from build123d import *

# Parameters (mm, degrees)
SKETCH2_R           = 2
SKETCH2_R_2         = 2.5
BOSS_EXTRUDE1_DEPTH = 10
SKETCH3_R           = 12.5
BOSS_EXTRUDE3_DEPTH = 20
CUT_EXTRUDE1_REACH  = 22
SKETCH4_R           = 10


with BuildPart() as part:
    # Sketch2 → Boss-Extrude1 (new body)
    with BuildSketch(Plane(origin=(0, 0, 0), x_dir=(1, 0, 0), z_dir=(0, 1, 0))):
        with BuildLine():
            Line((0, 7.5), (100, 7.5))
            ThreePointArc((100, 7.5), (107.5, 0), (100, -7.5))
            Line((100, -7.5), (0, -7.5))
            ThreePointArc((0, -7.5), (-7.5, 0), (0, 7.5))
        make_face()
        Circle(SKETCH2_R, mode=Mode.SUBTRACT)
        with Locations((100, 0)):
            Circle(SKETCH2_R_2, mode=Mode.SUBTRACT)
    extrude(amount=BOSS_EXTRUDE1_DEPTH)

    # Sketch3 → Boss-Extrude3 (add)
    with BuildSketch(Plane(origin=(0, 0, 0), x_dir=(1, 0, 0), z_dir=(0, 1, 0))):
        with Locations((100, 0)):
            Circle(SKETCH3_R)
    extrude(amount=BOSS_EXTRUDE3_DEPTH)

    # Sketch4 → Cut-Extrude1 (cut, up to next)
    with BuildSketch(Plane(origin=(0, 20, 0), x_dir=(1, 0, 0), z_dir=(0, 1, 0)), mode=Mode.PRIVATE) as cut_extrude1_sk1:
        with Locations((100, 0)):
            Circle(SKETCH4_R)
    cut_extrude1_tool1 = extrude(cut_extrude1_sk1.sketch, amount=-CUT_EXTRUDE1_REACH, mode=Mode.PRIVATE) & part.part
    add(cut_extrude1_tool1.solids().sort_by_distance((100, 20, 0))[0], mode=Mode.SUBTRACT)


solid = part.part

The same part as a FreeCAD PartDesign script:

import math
import FreeCAD as App
import Part
import Sketcher
Q = App.Units.Quantity

doc = App.newDocument("Part")
body = doc.addObject("PartDesign::Body", "Body")

# Sketch on XZ plane
sketch1 = body.newObject("Sketcher::SketchObject", "Sketch")
sketch1.AttachmentSupport = (doc.getObject("XZ_Plane"), [""])
sketch1.MapMode = "FlatFace"
sketch1.addGeometry(Part.LineSegment(App.Vector(100, -7.5, 0), App.Vector(0, -7.5, 0)), False)
sketch1.addGeometry(Part.ArcOfCircle(Part.Circle(App.Vector(0, 0, 0), App.Vector(0, 0, 1), 7.5), math.radians(90), math.radians(270)), False)
sketch1.addGeometry(Part.LineSegment(App.Vector(0, 7.5, 0), App.Vector(100, 7.5, 0)), False)
sketch1.addGeometry(Part.ArcOfCircle(Part.Circle(App.Vector(100, 0, 0), App.Vector(0, 0, 1), 7.5), math.radians(-90), math.radians(90)), False)
sketch1.addGeometry(Part.Circle(App.Vector(100, 0, 0), App.Vector(0, 0, 1), 2.5), False)
sketch1.addGeometry(Part.Circle(App.Vector(0, 0, 0), App.Vector(0, 0, 1), 2), False)
sketch1.addConstraint(Sketcher.Constraint("Tangent", 0, 2, 1, 2))
sketch1.addConstraint(Sketcher.Constraint("Tangent", 1, 1, 2, 1))
sketch1.addConstraint(Sketcher.Constraint("Tangent", 2, 2, 3, 2))
sketch1.addConstraint(Sketcher.Constraint("Tangent", 3, 1, 0, 1))
sketch1.addConstraint(Sketcher.Constraint("Horizontal", 0))
sketch1.addConstraint(Sketcher.Constraint("Horizontal", 2))
sketch1.addConstraint(Sketcher.Constraint("Coincident", 1, 3, -1, 1))
sketch1.addConstraint(Sketcher.Constraint("Coincident", 5, 3, -1, 1))
sketch1.addConstraint(Sketcher.Constraint("Coincident", 4, 3, 3, 3))
sketch1.addConstraint(Sketcher.Constraint("Diameter", 4, Q("5 mm")))
sketch1.addConstraint(Sketcher.Constraint("Diameter", 5, Q("4 mm")))
sketch1.addConstraint(Sketcher.Constraint("Radius", 1, Q("7.5 mm")))
sketch1.addConstraint(Sketcher.Constraint("DistanceX", 0, 2, 0, 1, Q("100 mm")))
pad1 = body.newObject("PartDesign::Pad", "Pad")
pad1.Profile = sketch1
pad1.Length = 10
pad1.Reversed = True

# Sketch on XZ plane
sketch2 = body.newObject("Sketcher::SketchObject", "Sketch001")
sketch2.AttachmentSupport = (doc.getObject("XZ_Plane"), [""])
sketch2.MapMode = "FlatFace"
sketch2.addGeometry(Part.Circle(App.Vector(100, 0, 0), App.Vector(0, 0, 1), 12), False)
sketch2.addConstraint(Sketcher.Constraint("PointOnObject", 0, 3, -1))
sketch2.addConstraint(Sketcher.Constraint("Diameter", 0, Q("25 mm")))
sketch2.addConstraint(Sketcher.Constraint("DistanceX", -1, 1, 0, 3, Q("100 mm")))
pad2 = body.newObject("PartDesign::Pad", "Pad001")
pad2.Profile = sketch2
pad2.Length = 20
pad2.Reversed = True

# Sketch on XZ plane
sketch3 = body.newObject("Sketcher::SketchObject", "Sketch002")
sketch3.AttachmentSupport = (doc.getObject("XZ_Plane"), [""])
sketch3.MapMode = "FlatFace"
sketch3.AttachmentOffset = App.Placement(App.Vector(0, 0, -20), App.Rotation())
sketch3.addGeometry(Part.Circle(App.Vector(100, 0, 0), App.Vector(0, 0, 1), 10), False)
sketch3.addConstraint(Sketcher.Constraint("PointOnObject", 0, 3, -1))
sketch3.addConstraint(Sketcher.Constraint("Diameter", 0, Q("20 mm")))
sketch3.addConstraint(Sketcher.Constraint("DistanceX", -1, 1, 0, 3, Q("100 mm")))
pocket1 = body.newObject("PartDesign::Pocket", "Pocket")
pocket1.Profile = sketch3
pocket1.Type = "UpToFirst"
pocket1.Reversed = True

doc.recompute()
